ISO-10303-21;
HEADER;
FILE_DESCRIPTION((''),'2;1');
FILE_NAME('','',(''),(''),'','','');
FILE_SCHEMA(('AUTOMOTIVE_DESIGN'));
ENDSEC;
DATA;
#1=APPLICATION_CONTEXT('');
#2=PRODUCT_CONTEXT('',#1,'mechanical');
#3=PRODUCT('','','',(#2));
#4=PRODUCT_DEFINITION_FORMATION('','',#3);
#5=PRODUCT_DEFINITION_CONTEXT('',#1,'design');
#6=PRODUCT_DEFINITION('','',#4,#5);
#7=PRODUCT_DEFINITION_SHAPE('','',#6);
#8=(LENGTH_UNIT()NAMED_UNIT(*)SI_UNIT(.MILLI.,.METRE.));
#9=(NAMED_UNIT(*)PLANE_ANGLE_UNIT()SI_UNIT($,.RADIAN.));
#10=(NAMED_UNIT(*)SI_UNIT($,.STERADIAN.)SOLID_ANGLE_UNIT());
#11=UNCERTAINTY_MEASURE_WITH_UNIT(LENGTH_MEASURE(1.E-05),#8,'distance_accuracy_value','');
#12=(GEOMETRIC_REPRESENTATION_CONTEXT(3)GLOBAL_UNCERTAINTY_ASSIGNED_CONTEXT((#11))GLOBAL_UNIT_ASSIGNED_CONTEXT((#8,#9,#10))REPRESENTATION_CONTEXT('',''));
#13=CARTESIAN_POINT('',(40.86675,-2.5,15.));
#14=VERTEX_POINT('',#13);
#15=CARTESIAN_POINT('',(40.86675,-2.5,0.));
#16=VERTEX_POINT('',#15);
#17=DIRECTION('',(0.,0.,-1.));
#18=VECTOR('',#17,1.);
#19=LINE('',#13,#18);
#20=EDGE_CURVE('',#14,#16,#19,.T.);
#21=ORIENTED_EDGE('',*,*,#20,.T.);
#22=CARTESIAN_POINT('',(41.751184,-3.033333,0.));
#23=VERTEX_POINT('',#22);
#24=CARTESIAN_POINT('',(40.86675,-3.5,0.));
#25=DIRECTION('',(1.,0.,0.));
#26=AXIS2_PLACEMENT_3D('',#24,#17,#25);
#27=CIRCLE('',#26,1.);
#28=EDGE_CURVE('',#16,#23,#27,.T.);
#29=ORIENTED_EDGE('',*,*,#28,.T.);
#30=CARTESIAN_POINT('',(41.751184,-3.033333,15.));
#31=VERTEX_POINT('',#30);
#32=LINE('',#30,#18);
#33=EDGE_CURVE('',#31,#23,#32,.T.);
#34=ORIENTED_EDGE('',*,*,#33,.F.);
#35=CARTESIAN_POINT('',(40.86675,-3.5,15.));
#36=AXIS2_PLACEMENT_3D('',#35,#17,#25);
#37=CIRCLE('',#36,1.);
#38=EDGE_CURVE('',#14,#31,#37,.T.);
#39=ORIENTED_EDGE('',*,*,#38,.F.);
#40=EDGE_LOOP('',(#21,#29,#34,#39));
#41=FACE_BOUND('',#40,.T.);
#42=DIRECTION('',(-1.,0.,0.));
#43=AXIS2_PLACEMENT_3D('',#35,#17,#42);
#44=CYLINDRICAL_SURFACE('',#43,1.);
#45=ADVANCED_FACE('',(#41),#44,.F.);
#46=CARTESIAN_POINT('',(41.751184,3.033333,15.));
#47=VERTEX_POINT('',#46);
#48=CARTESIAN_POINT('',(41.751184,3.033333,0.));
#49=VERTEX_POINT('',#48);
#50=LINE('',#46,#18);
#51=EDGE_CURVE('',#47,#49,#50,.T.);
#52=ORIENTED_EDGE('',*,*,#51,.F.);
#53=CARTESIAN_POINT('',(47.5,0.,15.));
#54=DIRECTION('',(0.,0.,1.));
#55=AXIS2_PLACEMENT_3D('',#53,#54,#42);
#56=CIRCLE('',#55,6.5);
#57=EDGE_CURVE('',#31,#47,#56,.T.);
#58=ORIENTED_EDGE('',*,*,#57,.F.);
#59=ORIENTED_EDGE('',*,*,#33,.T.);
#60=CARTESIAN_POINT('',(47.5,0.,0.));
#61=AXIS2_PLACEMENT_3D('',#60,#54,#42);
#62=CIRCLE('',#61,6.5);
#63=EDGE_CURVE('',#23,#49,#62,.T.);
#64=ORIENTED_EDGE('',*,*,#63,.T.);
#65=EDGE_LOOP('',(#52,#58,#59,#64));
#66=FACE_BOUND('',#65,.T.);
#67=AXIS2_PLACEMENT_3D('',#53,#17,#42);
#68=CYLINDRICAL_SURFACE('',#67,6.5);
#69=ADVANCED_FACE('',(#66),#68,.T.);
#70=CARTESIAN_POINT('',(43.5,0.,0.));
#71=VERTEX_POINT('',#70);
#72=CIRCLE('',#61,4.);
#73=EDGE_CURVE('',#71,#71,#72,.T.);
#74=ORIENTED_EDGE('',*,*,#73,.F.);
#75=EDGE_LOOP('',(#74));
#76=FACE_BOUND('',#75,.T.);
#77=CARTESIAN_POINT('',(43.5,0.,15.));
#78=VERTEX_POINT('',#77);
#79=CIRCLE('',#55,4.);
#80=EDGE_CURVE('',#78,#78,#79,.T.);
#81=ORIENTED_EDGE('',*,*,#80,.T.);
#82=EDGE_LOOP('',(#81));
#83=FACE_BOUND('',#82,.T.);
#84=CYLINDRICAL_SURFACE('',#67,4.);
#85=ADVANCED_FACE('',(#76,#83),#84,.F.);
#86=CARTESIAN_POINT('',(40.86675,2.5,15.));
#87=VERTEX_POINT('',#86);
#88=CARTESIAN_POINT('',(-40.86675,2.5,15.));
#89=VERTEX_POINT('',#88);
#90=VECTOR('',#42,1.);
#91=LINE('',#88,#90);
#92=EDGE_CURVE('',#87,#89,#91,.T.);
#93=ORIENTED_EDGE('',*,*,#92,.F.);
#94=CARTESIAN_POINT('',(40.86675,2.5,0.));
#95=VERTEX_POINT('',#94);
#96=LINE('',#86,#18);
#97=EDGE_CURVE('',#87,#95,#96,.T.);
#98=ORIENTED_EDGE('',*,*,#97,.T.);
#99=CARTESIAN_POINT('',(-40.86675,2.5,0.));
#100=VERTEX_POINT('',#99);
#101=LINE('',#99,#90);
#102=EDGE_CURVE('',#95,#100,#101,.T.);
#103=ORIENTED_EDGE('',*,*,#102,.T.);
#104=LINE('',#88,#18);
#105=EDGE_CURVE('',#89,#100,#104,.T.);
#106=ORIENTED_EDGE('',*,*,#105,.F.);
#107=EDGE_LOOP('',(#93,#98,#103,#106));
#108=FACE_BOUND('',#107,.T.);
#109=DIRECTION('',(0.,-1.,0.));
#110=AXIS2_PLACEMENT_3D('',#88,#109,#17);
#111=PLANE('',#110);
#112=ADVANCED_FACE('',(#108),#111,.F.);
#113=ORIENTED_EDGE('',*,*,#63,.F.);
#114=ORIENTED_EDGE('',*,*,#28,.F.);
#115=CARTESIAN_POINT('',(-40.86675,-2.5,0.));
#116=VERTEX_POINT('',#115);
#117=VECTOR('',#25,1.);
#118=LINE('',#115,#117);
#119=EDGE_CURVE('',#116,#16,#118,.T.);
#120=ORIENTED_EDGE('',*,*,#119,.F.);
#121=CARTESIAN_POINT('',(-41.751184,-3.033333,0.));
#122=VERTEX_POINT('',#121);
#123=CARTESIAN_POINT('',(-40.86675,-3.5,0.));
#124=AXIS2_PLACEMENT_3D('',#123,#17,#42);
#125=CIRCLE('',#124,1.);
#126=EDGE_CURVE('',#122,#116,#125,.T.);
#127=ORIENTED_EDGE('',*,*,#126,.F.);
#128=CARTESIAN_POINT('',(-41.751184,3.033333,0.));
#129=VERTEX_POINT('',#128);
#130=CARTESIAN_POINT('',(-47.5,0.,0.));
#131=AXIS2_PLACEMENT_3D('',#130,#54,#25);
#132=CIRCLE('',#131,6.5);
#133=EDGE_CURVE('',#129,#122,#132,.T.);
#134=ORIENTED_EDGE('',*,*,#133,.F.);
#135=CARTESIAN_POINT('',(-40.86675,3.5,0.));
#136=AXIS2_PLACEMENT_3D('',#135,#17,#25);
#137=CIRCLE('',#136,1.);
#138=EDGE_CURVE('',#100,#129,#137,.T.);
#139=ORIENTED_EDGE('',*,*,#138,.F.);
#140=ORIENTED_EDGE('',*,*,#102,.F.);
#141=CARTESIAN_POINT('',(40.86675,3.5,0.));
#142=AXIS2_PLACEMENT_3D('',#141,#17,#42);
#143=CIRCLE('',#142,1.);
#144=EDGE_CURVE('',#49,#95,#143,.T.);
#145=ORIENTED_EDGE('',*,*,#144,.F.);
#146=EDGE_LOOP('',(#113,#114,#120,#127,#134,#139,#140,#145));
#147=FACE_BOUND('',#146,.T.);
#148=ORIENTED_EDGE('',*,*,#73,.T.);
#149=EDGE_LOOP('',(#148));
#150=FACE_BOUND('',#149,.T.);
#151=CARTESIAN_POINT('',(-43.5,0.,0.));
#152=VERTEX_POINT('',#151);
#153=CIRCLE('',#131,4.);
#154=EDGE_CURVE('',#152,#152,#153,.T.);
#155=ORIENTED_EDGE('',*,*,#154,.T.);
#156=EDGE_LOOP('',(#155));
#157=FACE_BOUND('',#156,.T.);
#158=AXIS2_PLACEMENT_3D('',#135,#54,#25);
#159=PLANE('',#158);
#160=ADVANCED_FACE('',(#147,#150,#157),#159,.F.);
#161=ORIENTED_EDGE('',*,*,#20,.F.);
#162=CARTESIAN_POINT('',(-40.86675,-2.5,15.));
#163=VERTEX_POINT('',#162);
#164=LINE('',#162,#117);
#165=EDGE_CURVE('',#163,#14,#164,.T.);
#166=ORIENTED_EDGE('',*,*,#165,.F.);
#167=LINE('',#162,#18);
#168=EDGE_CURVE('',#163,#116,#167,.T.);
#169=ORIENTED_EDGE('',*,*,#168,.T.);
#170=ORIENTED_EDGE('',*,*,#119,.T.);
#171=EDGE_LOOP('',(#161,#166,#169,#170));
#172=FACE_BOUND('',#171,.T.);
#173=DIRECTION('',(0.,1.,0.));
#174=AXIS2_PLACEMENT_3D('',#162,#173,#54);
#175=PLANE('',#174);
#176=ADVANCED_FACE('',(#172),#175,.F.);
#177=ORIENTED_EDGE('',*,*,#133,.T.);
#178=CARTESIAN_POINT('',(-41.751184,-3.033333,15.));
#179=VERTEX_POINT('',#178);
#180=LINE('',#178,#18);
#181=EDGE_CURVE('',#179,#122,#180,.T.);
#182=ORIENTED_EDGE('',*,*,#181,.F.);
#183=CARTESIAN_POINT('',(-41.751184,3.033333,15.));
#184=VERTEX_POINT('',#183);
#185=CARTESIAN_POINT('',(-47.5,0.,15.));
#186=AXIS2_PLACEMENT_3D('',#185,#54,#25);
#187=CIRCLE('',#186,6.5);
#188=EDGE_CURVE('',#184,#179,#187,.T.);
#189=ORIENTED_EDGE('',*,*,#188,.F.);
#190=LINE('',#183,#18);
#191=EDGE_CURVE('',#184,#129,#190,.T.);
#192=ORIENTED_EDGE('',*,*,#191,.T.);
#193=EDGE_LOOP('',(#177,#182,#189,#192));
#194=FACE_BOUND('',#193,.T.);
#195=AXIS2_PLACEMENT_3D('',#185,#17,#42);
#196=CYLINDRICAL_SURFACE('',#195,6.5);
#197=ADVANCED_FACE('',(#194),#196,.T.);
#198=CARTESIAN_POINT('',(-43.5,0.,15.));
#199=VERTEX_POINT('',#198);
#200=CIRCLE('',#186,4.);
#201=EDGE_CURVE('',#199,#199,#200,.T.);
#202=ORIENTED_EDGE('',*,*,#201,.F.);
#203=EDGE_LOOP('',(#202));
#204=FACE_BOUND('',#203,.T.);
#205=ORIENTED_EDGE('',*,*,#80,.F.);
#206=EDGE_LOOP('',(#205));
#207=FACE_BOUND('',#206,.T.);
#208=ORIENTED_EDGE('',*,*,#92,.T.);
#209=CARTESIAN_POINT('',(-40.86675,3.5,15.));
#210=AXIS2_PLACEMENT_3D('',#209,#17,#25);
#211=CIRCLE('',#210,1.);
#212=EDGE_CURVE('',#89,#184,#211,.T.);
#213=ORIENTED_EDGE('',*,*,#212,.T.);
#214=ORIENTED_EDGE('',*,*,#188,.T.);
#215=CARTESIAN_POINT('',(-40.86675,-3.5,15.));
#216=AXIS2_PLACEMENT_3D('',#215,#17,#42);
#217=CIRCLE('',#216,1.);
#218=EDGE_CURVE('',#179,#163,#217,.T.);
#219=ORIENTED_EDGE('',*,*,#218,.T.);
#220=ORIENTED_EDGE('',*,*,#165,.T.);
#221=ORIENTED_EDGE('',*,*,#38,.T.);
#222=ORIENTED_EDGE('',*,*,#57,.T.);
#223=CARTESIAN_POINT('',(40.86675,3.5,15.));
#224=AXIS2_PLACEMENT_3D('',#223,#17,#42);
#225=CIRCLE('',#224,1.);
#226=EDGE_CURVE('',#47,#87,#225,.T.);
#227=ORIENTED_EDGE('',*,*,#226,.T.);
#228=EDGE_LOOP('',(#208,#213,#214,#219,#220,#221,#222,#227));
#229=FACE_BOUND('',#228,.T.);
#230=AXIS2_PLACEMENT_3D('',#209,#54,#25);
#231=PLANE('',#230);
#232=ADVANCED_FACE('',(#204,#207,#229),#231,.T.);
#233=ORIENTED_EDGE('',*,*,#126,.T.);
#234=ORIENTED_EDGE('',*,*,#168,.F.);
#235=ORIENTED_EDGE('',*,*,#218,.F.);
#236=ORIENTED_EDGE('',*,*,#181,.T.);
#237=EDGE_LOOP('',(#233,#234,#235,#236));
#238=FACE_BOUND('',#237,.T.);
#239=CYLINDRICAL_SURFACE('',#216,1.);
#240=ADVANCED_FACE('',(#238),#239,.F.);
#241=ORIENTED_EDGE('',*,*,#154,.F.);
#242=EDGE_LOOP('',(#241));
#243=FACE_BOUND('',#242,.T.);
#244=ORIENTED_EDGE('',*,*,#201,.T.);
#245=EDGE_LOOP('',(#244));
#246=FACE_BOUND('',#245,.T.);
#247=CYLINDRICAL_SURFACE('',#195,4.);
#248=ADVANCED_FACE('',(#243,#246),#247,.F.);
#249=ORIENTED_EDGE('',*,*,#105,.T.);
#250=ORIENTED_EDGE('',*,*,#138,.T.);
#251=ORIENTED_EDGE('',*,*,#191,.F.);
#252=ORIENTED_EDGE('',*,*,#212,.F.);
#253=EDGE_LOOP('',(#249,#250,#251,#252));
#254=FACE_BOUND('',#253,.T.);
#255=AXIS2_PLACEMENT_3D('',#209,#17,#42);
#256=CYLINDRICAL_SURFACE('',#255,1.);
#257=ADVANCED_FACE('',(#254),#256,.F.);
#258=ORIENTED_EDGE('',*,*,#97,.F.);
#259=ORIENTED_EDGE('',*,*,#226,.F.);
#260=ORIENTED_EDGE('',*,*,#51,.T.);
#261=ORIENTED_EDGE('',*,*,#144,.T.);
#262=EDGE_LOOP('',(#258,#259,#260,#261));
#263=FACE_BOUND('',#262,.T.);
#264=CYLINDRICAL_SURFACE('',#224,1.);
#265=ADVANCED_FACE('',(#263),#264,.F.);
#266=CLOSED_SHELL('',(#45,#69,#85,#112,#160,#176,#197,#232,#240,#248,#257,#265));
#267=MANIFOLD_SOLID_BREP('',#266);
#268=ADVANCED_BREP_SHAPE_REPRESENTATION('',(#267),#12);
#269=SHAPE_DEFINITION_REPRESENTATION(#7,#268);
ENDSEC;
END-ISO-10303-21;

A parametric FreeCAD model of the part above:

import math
import FreeCAD as App
import Part
import Sketcher
from FreeCAD import Vector

doc = App.newDocument("Part")
body = doc.addObject("PartDesign::Body", "Body")

sketch1 = body.newObject("Sketcher::SketchObject", "Sketch")
sketch1.AttachmentSupport = (doc.getObject("XY_Plane"), [""])
sketch1.MapMode = "FlatFace"
sketch1.addGeometry([
    Part.LineSegment(Vector(40.9, 2.5, 0), Vector(-40.9, 2.5, 0)),
    Part.ArcOfCircle(Part.Circle(Vector(-40.9, 3.5, 0), Vector(0, 0, 1), 1), math.radians(-152), math.radians(-90)),
    Part.ArcOfCircle(Part.Circle(Vector(-47.5, 0, 0), Vector(0, 0, 1), 6.5), math.radians(28), math.radians(332)),
    Part.ArcOfCircle(Part.Circle(Vector(-40.9, -3.5, 0), Vector(0, 0, 1), 1), math.radians(90), math.radians(152)),
    Part.LineSegment(Vector(-40.9, -2.5, 0), Vector(40.9, -2.5, 0)),
    Part.ArcOfCircle(Part.Circle(Vector(40.9, -3.5, 0), Vector(0, 0, 1), 1), math.radians(28), math.radians(90)),
    Part.ArcOfCircle(Part.Circle(Vector(47.5, 0, 0), Vector(0, 0, 1), 6.5), math.radians(-152), math.radians(152)),
    Part.ArcOfCircle(Part.Circle(Vector(40.9, 3.5, 0), Vector(0, 0, 1), 1), math.radians(-90), math.radians(-28)),
    Part.Circle(Vector(47.5, 0, 0), Vector(0, 0, 1), 4),
    Part.Circle(Vector(-47.5, 0, 0), Vector(0, 0, 1), 4),
], False)
sketch1.addConstraint([
    Sketcher.Constraint("Tangent", 0, 2, 1, 2),
    Sketcher.Constraint("Tangent", 1, 1, 2, 1),
    Sketcher.Constraint("Tangent", 2, 2, 3, 2),
    Sketcher.Constraint("Tangent", 3, 1, 4, 1),
    Sketcher.Constraint("Tangent", 4, 2, 5, 2),
    Sketcher.Constraint("Tangent", 5, 1, 6, 1),
    Sketcher.Constraint("Tangent", 6, 2, 7, 2),
    Sketcher.Constraint("Tangent", 7, 1, 0, 1),
    Sketcher.Constraint("Horizontal", 0),
    Sketcher.Constraint("Horizontal", 4),
    Sketcher.Constraint("Coincident", 8, 3, 6, 3),
    Sketcher.Constraint("Coincident", 9, 3, 2, 3),
    Sketcher.Constraint("Equal", 1, 3),
    Sketcher.Constraint("Equal", 3, 5),
    Sketcher.Constraint("Equal", 2, 6),
    Sketcher.Constraint("Equal", 5, 7),
    Sketcher.Constraint("Equal", 8, 9),
    Sketcher.Constraint("Symmetric", 1, 3, 5, 3, -1, 1),
    Sketcher.Constraint("Symmetric", 2, 3, 6, 3, -2),
    Sketcher.Constraint("Diameter", 8, 8.0),
    Sketcher.Constraint("Radius", 1, 1.0),
    Sketcher.Constraint("Radius", 2, 6.5),
    Sketcher.Constraint("DistanceY", 3, 3, 1, 3, 7.0),
    Sketcher.Constraint("DistanceX", 2, 3, 6, 3, 95.0),
])
pad1 = body.newObject("PartDesign::Pad", "Pad")
pad1.Profile = sketch1
pad1.Length = 15

doc.recompute()
